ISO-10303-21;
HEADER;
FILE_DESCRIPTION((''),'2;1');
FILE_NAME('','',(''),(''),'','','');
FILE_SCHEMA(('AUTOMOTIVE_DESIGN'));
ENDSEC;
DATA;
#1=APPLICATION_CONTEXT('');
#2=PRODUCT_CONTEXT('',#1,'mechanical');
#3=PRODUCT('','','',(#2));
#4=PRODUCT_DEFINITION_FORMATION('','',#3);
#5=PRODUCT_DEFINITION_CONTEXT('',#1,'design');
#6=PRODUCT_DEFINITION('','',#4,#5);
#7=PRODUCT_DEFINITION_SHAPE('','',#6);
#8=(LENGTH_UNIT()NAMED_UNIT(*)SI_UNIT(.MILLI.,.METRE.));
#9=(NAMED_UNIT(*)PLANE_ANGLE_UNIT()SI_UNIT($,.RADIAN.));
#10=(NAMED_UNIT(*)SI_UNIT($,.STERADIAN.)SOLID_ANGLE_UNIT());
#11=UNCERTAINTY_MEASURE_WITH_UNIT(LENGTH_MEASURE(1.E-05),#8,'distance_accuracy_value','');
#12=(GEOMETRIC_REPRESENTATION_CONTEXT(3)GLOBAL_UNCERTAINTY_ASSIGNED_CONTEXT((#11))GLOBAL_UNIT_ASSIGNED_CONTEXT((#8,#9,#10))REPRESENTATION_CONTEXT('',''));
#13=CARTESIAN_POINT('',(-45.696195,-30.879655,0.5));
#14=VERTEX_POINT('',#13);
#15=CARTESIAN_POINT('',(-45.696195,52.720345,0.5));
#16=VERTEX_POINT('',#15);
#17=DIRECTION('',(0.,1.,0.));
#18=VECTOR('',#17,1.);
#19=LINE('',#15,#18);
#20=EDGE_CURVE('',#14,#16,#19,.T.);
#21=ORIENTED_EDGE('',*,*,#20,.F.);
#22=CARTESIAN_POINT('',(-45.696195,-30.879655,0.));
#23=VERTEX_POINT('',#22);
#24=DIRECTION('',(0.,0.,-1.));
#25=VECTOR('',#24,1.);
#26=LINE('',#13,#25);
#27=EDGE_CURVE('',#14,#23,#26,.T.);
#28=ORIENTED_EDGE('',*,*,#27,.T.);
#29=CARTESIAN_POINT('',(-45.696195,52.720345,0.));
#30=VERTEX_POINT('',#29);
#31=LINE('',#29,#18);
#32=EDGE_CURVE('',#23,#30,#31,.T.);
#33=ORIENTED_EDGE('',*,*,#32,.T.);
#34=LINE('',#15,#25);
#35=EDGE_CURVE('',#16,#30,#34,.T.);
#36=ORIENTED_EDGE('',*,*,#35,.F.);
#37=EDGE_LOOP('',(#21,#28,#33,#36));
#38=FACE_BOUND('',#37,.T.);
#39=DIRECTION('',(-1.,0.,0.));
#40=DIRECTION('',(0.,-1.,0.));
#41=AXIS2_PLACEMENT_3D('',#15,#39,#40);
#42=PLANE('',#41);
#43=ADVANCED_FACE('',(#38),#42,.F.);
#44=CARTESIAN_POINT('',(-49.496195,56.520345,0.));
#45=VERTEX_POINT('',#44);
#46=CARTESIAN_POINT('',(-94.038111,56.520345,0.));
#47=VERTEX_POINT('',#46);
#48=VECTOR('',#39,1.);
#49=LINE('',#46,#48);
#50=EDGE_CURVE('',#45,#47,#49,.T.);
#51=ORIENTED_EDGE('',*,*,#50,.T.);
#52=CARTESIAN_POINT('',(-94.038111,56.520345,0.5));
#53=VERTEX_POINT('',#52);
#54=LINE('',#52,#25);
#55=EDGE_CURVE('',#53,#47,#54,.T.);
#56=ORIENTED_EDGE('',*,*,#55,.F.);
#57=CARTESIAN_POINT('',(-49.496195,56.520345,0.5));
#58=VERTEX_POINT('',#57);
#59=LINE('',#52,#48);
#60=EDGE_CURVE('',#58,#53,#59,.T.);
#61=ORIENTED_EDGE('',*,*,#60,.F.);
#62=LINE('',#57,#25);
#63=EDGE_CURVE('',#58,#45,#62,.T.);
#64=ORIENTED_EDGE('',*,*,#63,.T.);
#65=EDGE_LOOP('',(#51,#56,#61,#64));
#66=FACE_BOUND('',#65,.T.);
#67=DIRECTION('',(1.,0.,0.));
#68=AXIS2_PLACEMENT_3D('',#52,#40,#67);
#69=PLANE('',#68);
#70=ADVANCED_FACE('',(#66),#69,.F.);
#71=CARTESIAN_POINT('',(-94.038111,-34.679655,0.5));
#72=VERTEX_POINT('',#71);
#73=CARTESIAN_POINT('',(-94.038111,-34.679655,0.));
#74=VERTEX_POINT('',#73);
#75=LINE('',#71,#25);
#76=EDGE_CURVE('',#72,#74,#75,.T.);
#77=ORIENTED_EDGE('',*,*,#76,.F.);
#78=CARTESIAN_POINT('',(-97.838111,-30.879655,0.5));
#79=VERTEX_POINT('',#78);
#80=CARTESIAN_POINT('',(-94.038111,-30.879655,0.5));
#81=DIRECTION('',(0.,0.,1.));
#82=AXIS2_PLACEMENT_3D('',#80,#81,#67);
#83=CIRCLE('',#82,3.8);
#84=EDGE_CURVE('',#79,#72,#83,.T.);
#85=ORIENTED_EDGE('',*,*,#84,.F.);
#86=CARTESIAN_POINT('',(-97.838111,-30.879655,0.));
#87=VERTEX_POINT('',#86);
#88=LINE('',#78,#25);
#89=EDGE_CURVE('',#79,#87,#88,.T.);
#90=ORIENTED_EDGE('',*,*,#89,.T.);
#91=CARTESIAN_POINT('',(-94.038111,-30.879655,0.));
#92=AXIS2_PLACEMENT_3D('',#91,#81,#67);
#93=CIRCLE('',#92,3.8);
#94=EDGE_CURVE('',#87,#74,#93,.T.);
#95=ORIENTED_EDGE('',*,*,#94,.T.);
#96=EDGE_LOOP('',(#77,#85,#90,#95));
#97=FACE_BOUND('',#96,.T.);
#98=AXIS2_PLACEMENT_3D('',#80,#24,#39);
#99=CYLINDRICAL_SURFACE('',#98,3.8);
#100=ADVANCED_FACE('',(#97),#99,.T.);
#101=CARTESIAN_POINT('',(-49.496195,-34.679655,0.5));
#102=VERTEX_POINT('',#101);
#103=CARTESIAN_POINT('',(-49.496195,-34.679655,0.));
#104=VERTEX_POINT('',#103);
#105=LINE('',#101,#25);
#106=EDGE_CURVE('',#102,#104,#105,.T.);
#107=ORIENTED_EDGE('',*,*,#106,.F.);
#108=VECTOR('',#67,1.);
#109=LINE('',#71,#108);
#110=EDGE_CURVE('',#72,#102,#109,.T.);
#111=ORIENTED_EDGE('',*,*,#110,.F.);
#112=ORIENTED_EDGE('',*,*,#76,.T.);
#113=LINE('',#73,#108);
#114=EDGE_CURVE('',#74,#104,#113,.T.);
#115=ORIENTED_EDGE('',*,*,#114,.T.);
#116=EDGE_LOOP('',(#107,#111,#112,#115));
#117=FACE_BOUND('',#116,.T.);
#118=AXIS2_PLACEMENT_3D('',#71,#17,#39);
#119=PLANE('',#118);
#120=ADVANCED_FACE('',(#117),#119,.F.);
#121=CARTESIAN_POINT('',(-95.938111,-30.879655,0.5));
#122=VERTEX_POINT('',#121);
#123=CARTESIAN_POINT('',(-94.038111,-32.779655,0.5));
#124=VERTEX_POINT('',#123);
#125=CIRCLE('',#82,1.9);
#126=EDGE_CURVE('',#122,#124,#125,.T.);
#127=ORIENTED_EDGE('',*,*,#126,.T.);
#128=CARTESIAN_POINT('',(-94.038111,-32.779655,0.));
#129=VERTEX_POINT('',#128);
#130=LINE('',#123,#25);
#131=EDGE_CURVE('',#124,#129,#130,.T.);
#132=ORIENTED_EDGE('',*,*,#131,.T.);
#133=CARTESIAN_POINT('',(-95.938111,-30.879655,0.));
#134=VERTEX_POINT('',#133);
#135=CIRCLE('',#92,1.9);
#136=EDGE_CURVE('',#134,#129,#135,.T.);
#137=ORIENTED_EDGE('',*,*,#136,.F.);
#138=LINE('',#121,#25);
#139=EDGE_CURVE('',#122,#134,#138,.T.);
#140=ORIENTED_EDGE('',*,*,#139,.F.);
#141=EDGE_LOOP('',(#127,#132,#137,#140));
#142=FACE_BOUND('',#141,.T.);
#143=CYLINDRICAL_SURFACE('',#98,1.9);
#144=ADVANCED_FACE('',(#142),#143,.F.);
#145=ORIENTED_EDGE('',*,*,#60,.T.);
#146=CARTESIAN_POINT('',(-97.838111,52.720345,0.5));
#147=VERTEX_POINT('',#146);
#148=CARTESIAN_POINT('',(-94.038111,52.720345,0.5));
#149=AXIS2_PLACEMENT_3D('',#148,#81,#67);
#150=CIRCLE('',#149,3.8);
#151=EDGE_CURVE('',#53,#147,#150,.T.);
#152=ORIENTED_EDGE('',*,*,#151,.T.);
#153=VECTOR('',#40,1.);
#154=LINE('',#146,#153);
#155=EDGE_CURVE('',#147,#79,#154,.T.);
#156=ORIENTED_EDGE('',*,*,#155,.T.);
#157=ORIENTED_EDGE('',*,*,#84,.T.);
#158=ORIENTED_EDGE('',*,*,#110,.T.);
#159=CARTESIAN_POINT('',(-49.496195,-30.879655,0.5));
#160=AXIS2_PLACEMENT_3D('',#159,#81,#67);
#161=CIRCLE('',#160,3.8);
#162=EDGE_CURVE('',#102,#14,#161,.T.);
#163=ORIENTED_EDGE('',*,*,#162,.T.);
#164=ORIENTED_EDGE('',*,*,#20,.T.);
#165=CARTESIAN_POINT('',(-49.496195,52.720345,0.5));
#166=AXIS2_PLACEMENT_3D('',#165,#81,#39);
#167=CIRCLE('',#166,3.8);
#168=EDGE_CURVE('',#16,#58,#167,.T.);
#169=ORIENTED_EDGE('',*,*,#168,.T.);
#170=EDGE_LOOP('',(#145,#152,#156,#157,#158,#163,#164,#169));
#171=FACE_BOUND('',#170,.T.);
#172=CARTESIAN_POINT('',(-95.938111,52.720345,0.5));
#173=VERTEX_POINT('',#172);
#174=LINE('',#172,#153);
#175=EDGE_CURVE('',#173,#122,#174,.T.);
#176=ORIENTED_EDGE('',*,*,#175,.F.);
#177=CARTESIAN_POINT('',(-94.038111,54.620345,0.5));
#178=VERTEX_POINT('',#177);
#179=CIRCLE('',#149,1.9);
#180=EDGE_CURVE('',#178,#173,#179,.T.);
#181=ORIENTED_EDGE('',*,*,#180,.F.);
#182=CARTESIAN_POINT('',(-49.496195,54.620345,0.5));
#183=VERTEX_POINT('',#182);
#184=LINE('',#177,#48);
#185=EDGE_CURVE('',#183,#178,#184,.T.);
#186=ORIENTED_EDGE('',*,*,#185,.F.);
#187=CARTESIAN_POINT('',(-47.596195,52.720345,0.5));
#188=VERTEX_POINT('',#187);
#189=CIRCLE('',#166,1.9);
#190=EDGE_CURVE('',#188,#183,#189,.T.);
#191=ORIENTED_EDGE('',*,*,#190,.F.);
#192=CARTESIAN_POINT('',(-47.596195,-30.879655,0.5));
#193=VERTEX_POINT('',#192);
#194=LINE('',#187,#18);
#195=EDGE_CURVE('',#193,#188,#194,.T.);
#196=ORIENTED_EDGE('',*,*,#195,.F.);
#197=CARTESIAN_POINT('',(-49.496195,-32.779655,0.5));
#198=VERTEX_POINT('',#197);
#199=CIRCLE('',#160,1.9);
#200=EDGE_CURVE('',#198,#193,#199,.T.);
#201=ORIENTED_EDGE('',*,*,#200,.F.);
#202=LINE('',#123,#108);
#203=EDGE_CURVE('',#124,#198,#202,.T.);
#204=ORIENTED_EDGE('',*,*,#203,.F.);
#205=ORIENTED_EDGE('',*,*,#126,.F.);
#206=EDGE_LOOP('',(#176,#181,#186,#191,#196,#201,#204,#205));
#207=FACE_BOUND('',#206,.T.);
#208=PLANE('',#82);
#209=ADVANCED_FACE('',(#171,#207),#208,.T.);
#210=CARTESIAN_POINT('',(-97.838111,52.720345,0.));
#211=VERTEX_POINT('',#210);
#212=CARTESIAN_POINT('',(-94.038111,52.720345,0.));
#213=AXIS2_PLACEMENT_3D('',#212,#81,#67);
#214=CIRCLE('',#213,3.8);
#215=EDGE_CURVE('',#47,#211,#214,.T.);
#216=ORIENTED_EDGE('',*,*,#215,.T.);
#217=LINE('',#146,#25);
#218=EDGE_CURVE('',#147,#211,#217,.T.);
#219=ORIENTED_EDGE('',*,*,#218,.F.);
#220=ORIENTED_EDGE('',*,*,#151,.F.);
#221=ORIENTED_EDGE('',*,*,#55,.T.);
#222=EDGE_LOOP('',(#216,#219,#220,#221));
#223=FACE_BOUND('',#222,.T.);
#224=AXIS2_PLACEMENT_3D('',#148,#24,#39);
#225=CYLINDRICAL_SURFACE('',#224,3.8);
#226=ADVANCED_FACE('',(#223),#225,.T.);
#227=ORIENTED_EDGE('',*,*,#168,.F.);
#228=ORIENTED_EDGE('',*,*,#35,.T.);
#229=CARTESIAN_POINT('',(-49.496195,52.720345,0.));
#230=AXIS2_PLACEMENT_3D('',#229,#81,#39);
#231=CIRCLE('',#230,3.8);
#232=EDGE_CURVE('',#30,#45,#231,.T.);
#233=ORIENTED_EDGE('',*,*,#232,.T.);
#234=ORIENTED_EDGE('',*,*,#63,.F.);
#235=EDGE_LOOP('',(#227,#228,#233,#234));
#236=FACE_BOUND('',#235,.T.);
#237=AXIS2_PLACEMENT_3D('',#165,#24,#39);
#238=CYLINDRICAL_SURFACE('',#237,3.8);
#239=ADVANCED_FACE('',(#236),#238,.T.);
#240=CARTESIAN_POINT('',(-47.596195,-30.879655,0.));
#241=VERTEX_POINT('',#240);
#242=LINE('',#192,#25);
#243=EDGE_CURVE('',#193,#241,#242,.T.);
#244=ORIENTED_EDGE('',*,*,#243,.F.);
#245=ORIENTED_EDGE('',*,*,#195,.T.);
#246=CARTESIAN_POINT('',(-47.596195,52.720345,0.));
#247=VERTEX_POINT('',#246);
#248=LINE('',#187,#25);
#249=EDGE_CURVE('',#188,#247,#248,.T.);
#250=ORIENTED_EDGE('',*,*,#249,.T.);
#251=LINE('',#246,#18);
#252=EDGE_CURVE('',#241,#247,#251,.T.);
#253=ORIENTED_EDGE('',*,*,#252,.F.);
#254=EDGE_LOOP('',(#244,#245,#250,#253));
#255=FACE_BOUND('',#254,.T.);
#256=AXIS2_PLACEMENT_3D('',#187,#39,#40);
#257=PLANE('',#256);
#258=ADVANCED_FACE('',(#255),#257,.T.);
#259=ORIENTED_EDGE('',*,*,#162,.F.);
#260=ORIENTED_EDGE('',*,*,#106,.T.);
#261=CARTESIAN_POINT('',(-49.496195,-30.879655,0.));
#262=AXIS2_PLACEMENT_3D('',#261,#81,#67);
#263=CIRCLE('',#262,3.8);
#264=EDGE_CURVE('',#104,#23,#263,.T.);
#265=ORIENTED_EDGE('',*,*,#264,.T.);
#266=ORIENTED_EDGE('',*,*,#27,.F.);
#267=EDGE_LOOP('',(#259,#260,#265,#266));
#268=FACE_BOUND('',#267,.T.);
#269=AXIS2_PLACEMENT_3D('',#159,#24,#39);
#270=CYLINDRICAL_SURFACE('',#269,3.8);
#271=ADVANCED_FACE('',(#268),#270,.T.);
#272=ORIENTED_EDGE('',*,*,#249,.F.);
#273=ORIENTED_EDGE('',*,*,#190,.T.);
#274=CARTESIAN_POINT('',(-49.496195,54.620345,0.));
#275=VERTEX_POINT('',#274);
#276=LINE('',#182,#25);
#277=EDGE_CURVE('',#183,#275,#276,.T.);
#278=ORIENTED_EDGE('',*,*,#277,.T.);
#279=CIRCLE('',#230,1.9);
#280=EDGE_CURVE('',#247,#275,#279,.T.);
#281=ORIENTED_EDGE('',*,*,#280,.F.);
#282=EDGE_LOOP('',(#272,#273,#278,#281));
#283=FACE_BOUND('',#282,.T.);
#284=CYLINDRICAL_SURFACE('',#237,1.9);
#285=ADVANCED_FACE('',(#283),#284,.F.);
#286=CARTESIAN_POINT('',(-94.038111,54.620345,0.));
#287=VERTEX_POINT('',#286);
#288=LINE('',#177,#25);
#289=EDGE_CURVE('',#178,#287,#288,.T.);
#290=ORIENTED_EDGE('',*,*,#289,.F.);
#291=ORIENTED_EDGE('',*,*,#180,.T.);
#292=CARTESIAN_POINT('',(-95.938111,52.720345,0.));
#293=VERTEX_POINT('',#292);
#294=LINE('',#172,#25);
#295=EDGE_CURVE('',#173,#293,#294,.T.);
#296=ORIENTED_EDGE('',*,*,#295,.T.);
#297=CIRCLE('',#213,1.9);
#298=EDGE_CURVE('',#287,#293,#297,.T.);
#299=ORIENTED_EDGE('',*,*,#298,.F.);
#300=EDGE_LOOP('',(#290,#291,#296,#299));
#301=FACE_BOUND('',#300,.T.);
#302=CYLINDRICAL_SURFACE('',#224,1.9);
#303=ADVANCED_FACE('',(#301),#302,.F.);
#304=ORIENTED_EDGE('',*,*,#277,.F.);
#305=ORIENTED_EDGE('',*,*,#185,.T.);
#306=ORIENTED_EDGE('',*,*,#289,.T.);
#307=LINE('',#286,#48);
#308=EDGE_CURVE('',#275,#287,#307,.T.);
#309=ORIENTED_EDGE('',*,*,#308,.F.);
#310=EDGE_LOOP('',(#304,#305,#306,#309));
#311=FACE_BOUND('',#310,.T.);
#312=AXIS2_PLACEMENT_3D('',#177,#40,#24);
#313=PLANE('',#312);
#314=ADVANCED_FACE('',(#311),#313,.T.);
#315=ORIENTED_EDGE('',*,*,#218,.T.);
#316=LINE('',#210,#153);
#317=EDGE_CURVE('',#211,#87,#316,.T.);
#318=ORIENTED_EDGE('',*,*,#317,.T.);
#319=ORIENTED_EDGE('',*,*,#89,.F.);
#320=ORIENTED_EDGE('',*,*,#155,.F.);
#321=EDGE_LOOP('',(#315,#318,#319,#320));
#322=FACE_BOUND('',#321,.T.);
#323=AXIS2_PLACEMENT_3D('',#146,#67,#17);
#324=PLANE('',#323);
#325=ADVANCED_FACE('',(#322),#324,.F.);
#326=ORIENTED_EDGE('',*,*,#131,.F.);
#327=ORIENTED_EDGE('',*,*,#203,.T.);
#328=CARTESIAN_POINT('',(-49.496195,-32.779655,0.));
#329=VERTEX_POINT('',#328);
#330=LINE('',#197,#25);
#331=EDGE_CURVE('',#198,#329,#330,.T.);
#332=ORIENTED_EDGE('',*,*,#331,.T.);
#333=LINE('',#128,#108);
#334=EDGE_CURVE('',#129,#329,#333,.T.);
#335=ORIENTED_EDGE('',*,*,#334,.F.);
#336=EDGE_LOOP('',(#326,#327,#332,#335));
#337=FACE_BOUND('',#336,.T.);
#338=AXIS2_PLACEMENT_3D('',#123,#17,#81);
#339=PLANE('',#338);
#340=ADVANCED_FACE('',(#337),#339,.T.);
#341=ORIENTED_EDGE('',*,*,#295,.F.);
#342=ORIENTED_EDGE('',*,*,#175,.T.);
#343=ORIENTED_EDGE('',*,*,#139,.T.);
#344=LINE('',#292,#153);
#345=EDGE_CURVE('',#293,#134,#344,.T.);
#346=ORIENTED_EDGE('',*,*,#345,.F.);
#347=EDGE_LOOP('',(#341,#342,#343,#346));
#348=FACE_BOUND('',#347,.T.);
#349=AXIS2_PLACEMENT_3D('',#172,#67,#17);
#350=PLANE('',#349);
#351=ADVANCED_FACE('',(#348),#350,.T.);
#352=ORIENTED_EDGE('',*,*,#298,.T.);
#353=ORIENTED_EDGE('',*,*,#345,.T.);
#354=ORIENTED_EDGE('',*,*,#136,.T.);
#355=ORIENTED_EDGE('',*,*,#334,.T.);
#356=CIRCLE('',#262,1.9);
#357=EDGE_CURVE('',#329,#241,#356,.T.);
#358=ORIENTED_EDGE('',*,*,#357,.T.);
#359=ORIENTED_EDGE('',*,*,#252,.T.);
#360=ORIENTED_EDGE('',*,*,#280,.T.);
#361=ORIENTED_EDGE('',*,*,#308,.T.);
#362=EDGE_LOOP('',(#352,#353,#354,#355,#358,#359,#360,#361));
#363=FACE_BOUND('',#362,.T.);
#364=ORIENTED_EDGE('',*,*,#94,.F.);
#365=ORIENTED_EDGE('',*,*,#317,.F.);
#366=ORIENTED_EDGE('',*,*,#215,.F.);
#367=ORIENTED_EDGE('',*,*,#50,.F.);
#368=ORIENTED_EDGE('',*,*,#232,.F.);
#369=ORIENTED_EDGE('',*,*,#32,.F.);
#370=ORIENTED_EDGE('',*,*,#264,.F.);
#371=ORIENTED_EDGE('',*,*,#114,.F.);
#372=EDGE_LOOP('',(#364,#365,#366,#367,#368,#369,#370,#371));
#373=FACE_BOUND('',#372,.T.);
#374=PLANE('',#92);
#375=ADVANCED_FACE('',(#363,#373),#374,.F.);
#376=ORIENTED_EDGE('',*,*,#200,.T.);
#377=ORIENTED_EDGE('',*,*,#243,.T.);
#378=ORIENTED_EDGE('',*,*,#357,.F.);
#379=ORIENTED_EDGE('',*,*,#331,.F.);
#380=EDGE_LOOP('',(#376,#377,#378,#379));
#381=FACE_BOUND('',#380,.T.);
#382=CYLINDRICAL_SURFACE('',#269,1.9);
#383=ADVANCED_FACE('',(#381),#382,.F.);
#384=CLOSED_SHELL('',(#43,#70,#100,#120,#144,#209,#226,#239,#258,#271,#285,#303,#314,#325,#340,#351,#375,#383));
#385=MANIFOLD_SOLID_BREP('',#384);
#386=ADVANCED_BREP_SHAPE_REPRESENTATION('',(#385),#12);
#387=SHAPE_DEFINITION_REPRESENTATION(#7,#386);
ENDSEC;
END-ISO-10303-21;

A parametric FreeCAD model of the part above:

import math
import FreeCAD as App
import Part
import Sketcher
Q = App.Units.Quantity

doc = App.newDocument("Part")
body = doc.addObject("PartDesign::Body", "Body")

# Sketch on XY plane
sketch1 = body.newObject("Sketcher::SketchObject", "Sketch")
sketch1.AttachmentSupport = (doc.getObject("XY_Plane"), [""])
sketch1.MapMode = "FlatFace"
sketch1.addGeometry(Part.LineSegment(App.Vector(-49.5, 56.5, 0), App.Vector(-94, 56.5, 0)), False)
sketch1.addGeometry(Part.ArcOfCircle(Part.Circle(App.Vector(-94, 52.7, 0), App.Vector(0, 0, 1), 3.8), math.radians(90), math.radians(180)), False)
sketch1.addGeometry(Part.LineSegment(App.Vector(-97.8, 52.7, 0), App.Vector(-97.8, -30.9, 0)), False)
sketch1.addGeometry(Part.ArcOfCircle(Part.Circle(App.Vector(-94, -30.9, 0), App.Vector(0, 0, 1), 3.8), math.radians(-180), math.radians(-90)), False)
sketch1.addGeometry(Part.LineSegment(App.Vector(-94, -34.7, 0), App.Vector(-49.5, -34.7, 0)), False)
sketch1.addGeometry(Part.ArcOfCircle(Part.Circle(App.Vector(-49.5, -30.9, 0), App.Vector(0, 0, 1), 3.8), math.radians(-90), math.radians(0)), False)
sketch1.addGeometry(Part.LineSegment(App.Vector(-45.7, -30.9, 0), App.Vector(-45.7, 52.7, 0)), False)
sketch1.addGeometry(Part.ArcOfCircle(Part.Circle(App.Vector(-49.5, 52.7, 0), App.Vector(0, 0, 1), 3.8), math.radians(0), math.radians(90)), False)
sketch1.addGeometry(Part.ArcOfCircle(Part.Circle(App.Vector(-94, 52.7, 0), App.Vector(0, 0, 1), 1.9), math.radians(90), math.radians(180)), False)
sketch1.addGeometry(Part.LineSegment(App.Vector(-94, 54.6, 0), App.Vector(-49.5, 54.6, 0)), False)
sketch1.addGeometry(Part.ArcOfCircle(Part.Circle(App.Vector(-49.5, 52.7, 0), App.Vector(0, 0, 1), 1.9), math.radians(0), math.radians(90)), False)
sketch1.addGeometry(Part.LineSegment(App.Vector(-47.6, 52.7, 0), App.Vector(-47.6, -30.9, 0)), False)
sketch1.addGeometry(Part.ArcOfCircle(Part.Circle(App.Vector(-49.5, -30.9, 0), App.Vector(0, 0, 1), 1.9), math.radians(-90), math.radians(0)), False)
sketch1.addGeometry(Part.LineSegment(App.Vector(-49.5, -32.8, 0), App.Vector(-94, -32.8, 0)), False)
sketch1.addGeometry(Part.ArcOfCircle(Part.Circle(App.Vector(-94, -30.9, 0), App.Vector(0, 0, 1), 1.9), math.radians(-180), math.radians(-90)), False)
sketch1.addGeometry(Part.LineSegment(App.Vector(-95.9, -30.9, 0), App.Vector(-95.9, 52.7, 0)), False)
sketch1.addConstraint(Sketcher.Constraint("Tangent", 0, 2, 1, 1))
sketch1.addConstraint(Sketcher.Constraint("Tangent", 1, 2, 2, 1))
sketch1.addConstraint(Sketcher.Constraint("Tangent", 2, 2, 3, 1))
sketch1.addConstraint(Sketcher.Constraint("Tangent", 3, 2, 4, 1))
sketch1.addConstraint(Sketcher.Constraint("Tangent", 4, 2, 5, 1))
sketch1.addConstraint(Sketcher.Constraint("Tangent", 5, 2, 6, 1))
sketch1.addConstraint(Sketcher.Constraint("Tangent", 6, 2, 7, 1))
sketch1.addConstraint(Sketcher.Constraint("Tangent", 7, 2, 0, 1))
sketch1.addConstraint(Sketcher.Constraint("Tangent", 8, 1, 9, 1))
sketch1.addConstraint(Sketcher.Constraint("Tangent", 9, 2, 10, 2))
sketch1.addConstraint(Sketcher.Constraint("Tangent", 10, 1, 11, 1))
sketch1.addConstraint(Sketcher.Constraint("Tangent", 11, 2, 12, 2))
sketch1.addConstraint(Sketcher.Constraint("Tangent", 12, 1, 13, 1))
sketch1.addConstraint(Sketcher.Constraint("Tangent", 13, 2, 14, 2))
sketch1.addConstraint(Sketcher.Constraint("Tangent", 14, 1, 15, 1))
sketch1.addConstraint(Sketcher.Constraint("Tangent", 15, 2, 8, 2))
sketch1.addConstraint(Sketcher.Constraint("Horizontal", 0))
sketch1.addConstraint(Sketcher.Constraint("Vertical", 2))
sketch1.addConstraint(Sketcher.Constraint("Horizontal", 4))
sketch1.addConstraint(Sketcher.Constraint("Vertical", 6))
sketch1.addConstraint(Sketcher.Constraint("Horizontal", 9))
sketch1.addConstraint(Sketcher.Constraint("Vertical", 11))
sketch1.addConstraint(Sketcher.Constraint("Horizontal", 13))
sketch1.addConstraint(Sketcher.Constraint("Vertical", 15))
sketch1.addConstraint(Sketcher.Constraint("Coincident", 8, 3, 1, 3))
sketch1.addConstraint(Sketcher.Constraint("Coincident", 10, 3, 7, 3))
sketch1.addConstraint(Sketcher.Constraint("Coincident", 12, 3, 5, 3))
sketch1.addConstraint(Sketcher.Constraint("Equal", 1, 3))
sketch1.addConstraint(Sketcher.Constraint("Equal", 3, 5))
sketch1.addConstraint(Sketcher.Constraint("Equal", 5, 7))
sketch1.addConstraint(Sketcher.Constraint("Equal", 12, 14))
sketch1.addConstraint(Sketcher.Constraint("Radius", 1, Q("3.8 mm")))
sketch1.addConstraint(Sketcher.Constraint("Radius", 8, Q("1.9 mm")))
sketch1.addConstraint(Sketcher.Constraint("DistanceY", 2, 2, 2, 1, Q("83.6 mm")))
sketch1.addConstraint(Sketcher.Constraint("DistanceX", 0, 2, 0, 1, Q("44.541916 mm")))
sketch1.addConstraint(Sketcher.Constraint("DistanceX", 1, 3, -1, 1, Q("94.038111 mm")))
sketch1.addConstraint(Sketcher.Constraint("DistanceY", -1, 1, 1, 3, Q("52.720345 mm")))
pad1 = body.newObject("PartDesign::Pad", "Pad")
pad1.Profile = sketch1
pad1.Length = 0.5

doc.recompute()
